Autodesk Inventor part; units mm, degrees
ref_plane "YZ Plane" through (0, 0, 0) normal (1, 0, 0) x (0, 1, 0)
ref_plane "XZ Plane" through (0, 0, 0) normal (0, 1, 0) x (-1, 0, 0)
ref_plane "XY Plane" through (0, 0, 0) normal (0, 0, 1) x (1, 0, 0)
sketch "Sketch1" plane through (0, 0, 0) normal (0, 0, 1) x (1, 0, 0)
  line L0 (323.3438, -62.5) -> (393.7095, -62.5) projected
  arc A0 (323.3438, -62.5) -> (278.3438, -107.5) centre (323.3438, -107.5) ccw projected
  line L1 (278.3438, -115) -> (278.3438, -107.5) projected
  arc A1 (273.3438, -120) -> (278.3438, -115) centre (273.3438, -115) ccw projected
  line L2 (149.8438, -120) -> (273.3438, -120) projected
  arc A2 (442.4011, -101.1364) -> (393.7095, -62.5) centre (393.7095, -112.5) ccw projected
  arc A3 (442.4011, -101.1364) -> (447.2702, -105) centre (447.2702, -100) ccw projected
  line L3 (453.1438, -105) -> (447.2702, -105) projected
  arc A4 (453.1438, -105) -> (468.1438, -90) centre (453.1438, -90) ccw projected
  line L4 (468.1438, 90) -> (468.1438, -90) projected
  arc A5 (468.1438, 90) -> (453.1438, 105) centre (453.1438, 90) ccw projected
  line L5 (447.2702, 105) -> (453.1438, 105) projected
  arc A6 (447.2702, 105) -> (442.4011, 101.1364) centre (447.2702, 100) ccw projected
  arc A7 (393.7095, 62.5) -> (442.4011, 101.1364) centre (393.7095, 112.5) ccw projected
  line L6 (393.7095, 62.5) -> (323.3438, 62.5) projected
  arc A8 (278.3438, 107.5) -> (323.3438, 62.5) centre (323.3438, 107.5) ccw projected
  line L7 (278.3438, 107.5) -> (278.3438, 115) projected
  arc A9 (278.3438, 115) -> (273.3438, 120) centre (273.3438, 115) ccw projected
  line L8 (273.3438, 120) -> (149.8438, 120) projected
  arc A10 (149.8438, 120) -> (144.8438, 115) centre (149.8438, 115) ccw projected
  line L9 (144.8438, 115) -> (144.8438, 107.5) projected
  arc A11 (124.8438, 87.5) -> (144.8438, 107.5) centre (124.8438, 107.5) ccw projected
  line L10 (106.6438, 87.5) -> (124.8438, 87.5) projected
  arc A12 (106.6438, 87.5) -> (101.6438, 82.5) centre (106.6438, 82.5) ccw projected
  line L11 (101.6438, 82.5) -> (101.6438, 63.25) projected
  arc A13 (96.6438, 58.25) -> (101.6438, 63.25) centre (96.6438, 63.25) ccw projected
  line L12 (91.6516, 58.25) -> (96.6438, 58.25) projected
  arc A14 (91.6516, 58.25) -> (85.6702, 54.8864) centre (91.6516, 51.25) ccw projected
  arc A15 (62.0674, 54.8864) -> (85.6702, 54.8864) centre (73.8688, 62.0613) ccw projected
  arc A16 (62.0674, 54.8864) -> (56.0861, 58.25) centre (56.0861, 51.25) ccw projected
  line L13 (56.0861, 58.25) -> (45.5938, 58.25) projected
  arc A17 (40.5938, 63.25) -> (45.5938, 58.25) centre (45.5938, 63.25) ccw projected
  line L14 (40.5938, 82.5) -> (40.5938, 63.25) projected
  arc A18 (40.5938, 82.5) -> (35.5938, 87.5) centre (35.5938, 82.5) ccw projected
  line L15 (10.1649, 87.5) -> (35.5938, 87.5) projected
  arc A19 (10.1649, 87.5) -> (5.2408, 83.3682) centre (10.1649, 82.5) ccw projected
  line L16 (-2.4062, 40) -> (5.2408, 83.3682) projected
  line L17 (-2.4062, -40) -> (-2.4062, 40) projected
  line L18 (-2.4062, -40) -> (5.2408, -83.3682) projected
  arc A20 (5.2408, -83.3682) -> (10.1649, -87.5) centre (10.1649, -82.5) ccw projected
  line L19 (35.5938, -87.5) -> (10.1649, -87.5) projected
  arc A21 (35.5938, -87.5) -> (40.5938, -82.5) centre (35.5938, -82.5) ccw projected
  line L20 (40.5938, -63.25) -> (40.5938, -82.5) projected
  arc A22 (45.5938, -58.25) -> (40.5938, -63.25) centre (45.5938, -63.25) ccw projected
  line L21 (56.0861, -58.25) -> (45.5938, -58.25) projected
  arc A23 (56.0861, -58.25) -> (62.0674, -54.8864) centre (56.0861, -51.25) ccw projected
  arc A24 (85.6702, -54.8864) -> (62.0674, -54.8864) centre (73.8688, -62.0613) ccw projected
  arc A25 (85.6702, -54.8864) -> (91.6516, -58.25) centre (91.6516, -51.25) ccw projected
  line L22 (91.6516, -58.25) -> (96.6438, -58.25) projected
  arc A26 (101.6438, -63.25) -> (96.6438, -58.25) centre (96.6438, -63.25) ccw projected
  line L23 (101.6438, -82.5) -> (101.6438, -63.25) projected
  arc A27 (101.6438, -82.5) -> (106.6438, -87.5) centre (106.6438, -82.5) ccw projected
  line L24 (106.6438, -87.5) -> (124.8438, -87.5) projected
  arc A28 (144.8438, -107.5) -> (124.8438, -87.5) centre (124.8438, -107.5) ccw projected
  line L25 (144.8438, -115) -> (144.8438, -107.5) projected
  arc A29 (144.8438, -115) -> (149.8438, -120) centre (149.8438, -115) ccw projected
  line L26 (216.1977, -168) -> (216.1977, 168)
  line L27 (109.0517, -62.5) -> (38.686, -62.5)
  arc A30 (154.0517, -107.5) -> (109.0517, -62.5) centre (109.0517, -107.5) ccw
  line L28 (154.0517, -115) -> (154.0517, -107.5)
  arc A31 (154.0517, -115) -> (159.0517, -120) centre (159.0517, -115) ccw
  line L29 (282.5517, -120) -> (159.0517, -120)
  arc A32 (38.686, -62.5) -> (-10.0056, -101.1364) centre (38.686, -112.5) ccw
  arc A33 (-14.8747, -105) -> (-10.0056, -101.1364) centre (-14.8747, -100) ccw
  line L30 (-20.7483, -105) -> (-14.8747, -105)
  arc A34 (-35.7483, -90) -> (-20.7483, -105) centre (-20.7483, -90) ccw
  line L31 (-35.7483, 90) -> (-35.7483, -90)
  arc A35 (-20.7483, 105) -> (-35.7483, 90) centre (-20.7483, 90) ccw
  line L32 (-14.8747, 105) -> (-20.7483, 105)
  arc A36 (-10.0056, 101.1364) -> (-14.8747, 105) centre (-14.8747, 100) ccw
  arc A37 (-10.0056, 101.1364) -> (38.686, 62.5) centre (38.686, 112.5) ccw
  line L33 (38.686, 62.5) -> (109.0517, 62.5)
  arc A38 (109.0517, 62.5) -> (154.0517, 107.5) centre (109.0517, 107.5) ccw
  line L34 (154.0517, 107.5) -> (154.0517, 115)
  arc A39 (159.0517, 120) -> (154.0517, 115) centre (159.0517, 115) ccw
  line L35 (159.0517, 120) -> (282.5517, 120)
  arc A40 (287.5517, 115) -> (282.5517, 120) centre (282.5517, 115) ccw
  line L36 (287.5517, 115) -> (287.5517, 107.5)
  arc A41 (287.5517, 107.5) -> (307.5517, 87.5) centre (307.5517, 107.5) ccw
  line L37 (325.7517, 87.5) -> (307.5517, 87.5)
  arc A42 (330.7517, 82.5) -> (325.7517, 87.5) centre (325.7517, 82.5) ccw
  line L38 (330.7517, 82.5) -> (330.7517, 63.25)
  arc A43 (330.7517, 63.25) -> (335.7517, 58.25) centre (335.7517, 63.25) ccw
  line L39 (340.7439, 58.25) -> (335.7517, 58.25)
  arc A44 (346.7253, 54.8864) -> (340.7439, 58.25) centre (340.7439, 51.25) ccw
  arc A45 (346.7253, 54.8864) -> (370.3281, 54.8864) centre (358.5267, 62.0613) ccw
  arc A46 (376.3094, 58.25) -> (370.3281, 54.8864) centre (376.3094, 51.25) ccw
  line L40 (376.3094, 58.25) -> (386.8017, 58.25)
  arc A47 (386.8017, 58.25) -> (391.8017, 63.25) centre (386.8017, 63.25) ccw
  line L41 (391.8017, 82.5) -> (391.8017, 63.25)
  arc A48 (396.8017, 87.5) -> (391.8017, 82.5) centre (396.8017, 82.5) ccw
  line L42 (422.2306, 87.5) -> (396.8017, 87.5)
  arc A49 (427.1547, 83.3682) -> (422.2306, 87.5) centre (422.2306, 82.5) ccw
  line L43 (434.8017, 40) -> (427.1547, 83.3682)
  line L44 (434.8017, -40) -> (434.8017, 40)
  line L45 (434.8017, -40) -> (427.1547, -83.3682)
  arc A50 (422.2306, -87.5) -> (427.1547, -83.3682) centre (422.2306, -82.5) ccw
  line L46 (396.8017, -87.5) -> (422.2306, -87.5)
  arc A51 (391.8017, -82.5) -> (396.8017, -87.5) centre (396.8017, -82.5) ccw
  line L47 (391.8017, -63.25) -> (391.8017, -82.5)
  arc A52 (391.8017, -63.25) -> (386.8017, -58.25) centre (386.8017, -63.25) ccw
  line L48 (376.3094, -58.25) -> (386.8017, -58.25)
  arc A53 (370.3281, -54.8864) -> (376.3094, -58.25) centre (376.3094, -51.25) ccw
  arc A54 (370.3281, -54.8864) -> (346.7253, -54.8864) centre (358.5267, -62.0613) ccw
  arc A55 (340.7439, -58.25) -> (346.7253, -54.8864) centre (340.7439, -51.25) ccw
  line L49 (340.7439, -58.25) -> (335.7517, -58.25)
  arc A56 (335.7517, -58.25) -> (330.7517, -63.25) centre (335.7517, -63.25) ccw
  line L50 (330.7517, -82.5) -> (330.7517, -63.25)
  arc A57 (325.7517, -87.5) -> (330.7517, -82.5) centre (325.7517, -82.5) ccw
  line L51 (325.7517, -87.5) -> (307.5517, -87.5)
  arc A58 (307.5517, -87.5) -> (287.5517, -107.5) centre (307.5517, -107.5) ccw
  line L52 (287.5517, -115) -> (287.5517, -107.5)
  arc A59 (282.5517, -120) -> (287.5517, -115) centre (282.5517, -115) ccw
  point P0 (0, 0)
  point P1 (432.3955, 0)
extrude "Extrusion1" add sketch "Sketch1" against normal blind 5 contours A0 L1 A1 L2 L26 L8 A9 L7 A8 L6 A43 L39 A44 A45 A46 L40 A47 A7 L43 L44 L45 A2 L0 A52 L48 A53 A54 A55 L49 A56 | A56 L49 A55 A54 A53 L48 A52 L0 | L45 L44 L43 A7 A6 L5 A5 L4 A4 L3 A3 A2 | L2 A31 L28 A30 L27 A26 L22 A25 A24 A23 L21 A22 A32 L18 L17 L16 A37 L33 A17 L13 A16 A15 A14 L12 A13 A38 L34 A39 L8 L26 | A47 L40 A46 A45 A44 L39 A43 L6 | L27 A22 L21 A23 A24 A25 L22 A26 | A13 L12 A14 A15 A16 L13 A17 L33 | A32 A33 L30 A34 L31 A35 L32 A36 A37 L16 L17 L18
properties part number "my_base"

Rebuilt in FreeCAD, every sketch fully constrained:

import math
import FreeCAD as App
import Part
import Sketcher

doc = App.newDocument("Part")
params = doc.addObject("Spreadsheet::Sheet", "Params")
for row, (alias, value) in enumerate([
    ("sketch1_radius", "45 mm"),
    ("sketch1_radius2", "50 mm"),
    ("sketch1_radius3", "5 mm"),
    ("sketch1_radius4", "15 mm"),
    ("sketch1_height", "180 mm"),
    ("pad1_length", "5 mm"),
], start=1):
    params.set(f"A{row}", alias)
    params.set(f"B{row}", "=" + value)
    params.setAlias(f"B{row}", alias)

body = doc.addObject("PartDesign::Body", "Body")

# Sketch on XY plane
sketch1 = body.newObject("Sketcher::SketchObject", "Sketch")
sketch1.AttachmentSupport = (doc.getObject("XY_Plane"), [""])
sketch1.MapMode = "FlatFace"
sketch1.addGeometry([
    Part.ArcOfCircle(Part.Circle(App.Vector(323.3, -107.5, 0), App.Vector(0, 0, 1), 45), math.radians(90), math.radians(180)),  # 0
    Part.LineSegment(App.Vector(323.3, -62.5, 0), App.Vector(393.7, -62.5, 0)),  # 1
    Part.ArcOfCircle(Part.Circle(App.Vector(393.7, -112.5, 0), App.Vector(0, 0, 1), 50), math.radians(13), math.radians(90)),  # 2
    Part.ArcOfCircle(Part.Circle(App.Vector(447.3, -100, 0), App.Vector(0, 0, 1), 5), math.radians(-167), math.radians(-90)),  # 3
    Part.LineSegment(App.Vector(447.3, -105, 0), App.Vector(453.1, -105, 0)),  # 4
    Part.ArcOfCircle(Part.Circle(App.Vector(453.1, -90, 0), App.Vector(0, 0, 1), 15), math.radians(-90), math.radians(0)),  # 5
    Part.LineSegment(App.Vector(468.1, -90, 0), App.Vector(468.1, 90, 0)),  # 6
    Part.ArcOfCircle(Part.Circle(App.Vector(453.1, 90, 0), App.Vector(0, 0, 1), 15), math.radians(0), math.radians(90)),  # 7
    Part.LineSegment(App.Vector(453.1, 105, 0), App.Vector(447.3, 105, 0)),  # 8
    Part.ArcOfCircle(Part.Circle(App.Vector(447.3, 100, 0), App.Vector(0, 0, 1), 5), math.radians(90), math.radians(167)),  # 9
    Part.ArcOfCircle(Part.Circle(App.Vector(393.7, 112.5, 0), App.Vector(0, 0, 1), 50), math.radians(-90), math.radians(-13)),  # 10
    Part.LineSegment(App.Vector(393.7, 62.5, 0), App.Vector(323.3, 62.5, 0)),  # 11
    Part.ArcOfCircle(Part.Circle(App.Vector(323.3, 107.5, 0), App.Vector(0, 0, 1), 45), math.radians(180), math.radians(270)),  # 12
    Part.LineSegment(App.Vector(278.3, 107.5, 0), App.Vector(278.3, 115, 0)),  # 13
    Part.ArcOfCircle(Part.Circle(App.Vector(273.3, 115, 0), App.Vector(0, 0, 1), 5), math.radians(0), math.radians(90)),  # 14
    Part.LineSegment(App.Vector(273.3, 120, 0), App.Vector(159.1, 120, 0)),  # 15
    Part.ArcOfCircle(Part.Circle(App.Vector(159.1, 115, 0), App.Vector(0, 0, 1), 5), math.radians(90), math.radians(180)),  # 16
    Part.LineSegment(App.Vector(154.1, 115, 0), App.Vector(154.1, 107.5, 0)),  # 17
    Part.ArcOfCircle(Part.Circle(App.Vector(109.1, 107.5, 0), App.Vector(0, 0, 1), 45), math.radians(-90), math.radians(0)),  # 18
    Part.LineSegment(App.Vector(109.1, 62.5, 0), App.Vector(38.7, 62.5, 0)),  # 19
    Part.ArcOfCircle(Part.Circle(App.Vector(38.7, 112.5, 0), App.Vector(0, 0, 1), 50), math.radians(-167), math.radians(-90)),  # 20
    Part.ArcOfCircle(Part.Circle(App.Vector(-14.9, 100, 0), App.Vector(0, 0, 1), 5), math.radians(13), math.radians(90)),  # 21
    Part.LineSegment(App.Vector(-14.9, 105, 0), App.Vector(-20.7, 105, 0)),  # 22
    Part.ArcOfCircle(Part.Circle(App.Vector(-20.7, 90, 0), App.Vector(0, 0, 1), 15), math.radians(90), math.radians(180)),  # 23
    Part.LineSegment(App.Vector(-35.7, 90, 0), App.Vector(-35.7, -90, 0)),  # 24
    Part.ArcOfCircle(Part.Circle(App.Vector(-20.7, -90, 0), App.Vector(0, 0, 1), 15), math.radians(180), math.radians(270)),  # 25
    Part.LineSegment(App.Vector(-20.7, -105, 0), App.Vector(-14.9, -105, 0)),  # 26
    Part.ArcOfCircle(Part.Circle(App.Vector(-14.9, -100, 0), App.Vector(0, 0, 1), 5), math.radians(-90), math.radians(-13)),  # 27
    Part.ArcOfCircle(Part.Circle(App.Vector(38.7, -112.5, 0), App.Vector(0, 0, 1), 50), math.radians(90), math.radians(167)),  # 28
    Part.LineSegment(App.Vector(38.7, -62.5, 0), App.Vector(109.1, -62.5, 0)),  # 29
    Part.ArcOfCircle(Part.Circle(App.Vector(109.1, -107.5, 0), App.Vector(0, 0, 1), 45), math.radians(0), math.radians(90)),  # 30
    Part.LineSegment(App.Vector(154.1, -107.5, 0), App.Vector(154.1, -115, 0)),  # 31
    Part.ArcOfCircle(Part.Circle(App.Vector(159.1, -115, 0), App.Vector(0, 0, 1), 5), math.radians(180), math.radians(270)),  # 32
    Part.LineSegment(App.Vector(159.1, -120, 0), App.Vector(273.3, -120, 0)),  # 33
    Part.ArcOfCircle(Part.Circle(App.Vector(273.3, -115, 0), App.Vector(0, 0, 1), 5), math.radians(-90), math.radians(0)),  # 34
    Part.LineSegment(App.Vector(278.3, -115, 0), App.Vector(278.3, -107.5, 0)),  # 35
], False)
sketch1.addConstraint([
    Sketcher.Constraint("Tangent", 0, 1, 1, 1),
    Sketcher.Constraint("Tangent", 1, 2, 2, 2),
    Sketcher.Constraint("Tangent", 2, 1, 3, 1),
    Sketcher.Constraint("Tangent", 3, 2, 4, 1),
    Sketcher.Constraint("Tangent", 4, 2, 5, 1),
    Sketcher.Constraint("Tangent", 5, 2, 6, 1),
    Sketcher.Constraint("Tangent", 6, 2, 7, 1),
    Sketcher.Constraint("Tangent", 7, 2, 8, 1),
    Sketcher.Constraint("Tangent", 8, 2, 9, 1),
    Sketcher.Constraint("Tangent", 9, 2, 10, 2),
    Sketcher.Constraint("Tangent", 10, 1, 11, 1),
    Sketcher.Constraint("Tangent", 11, 2, 12, 2),
    Sketcher.Constraint("Tangent", 12, 1, 13, 1),
    Sketcher.Constraint("Tangent", 13, 2, 14, 1),
    Sketcher.Constraint("Tangent", 14, 2, 15, 1),
    Sketcher.Constraint("Tangent", 15, 2, 16, 1),
    Sketcher.Constraint("Tangent", 16, 2, 17, 1),
    Sketcher.Constraint("Tangent", 17, 2, 18, 2),
    Sketcher.Constraint("Tangent", 18, 1, 19, 1),
    Sketcher.Constraint("Tangent", 19, 2, 20, 2),
    Sketcher.Constraint("Tangent", 20, 1, 21, 1),
    Sketcher.Constraint("Tangent", 21, 2, 22, 1),
    Sketcher.Constraint("Tangent", 22, 2, 23, 1),
    Sketcher.Constraint("Tangent", 23, 2, 24, 1),
    Sketcher.Constraint("Tangent", 24, 2, 25, 1),
    Sketcher.Constraint("Tangent", 25, 2, 26, 1),
    Sketcher.Constraint("Tangent", 26, 2, 27, 1),
    Sketcher.Constraint("Tangent", 27, 2, 28, 2),
    Sketcher.Constraint("Tangent", 28, 1, 29, 1),
    Sketcher.Constraint("Tangent", 29, 2, 30, 2),
    Sketcher.Constraint("Tangent", 30, 1, 31, 1),
    Sketcher.Constraint("Tangent", 31, 2, 32, 1),
    Sketcher.Constraint("Tangent", 32, 2, 33, 1),
    Sketcher.Constraint("Tangent", 33, 2, 34, 1),
    Sketcher.Constraint("Tangent", 34, 2, 35, 1),
    Sketcher.Constraint("Tangent", 35, 2, 0, 2),
    Sketcher.Constraint("Horizontal", 1),
    Sketcher.Constraint("Horizontal", 4),
    Sketcher.Constraint("Vertical", 6),
    Sketcher.Constraint("Horizontal", 8),
    Sketcher.Constraint("Horizontal", 11),
    Sketcher.Constraint("Vertical", 13),
    Sketcher.Constraint("Horizontal", 15),
    Sketcher.Constraint("Vertical", 17),
    Sketcher.Constraint("Horizontal", 19),
    Sketcher.Constraint("Horizontal", 22),
    Sketcher.Constraint("Vertical", 24),
    Sketcher.Constraint("Horizontal", 26),
    Sketcher.Constraint("Horizontal", 29),
    Sketcher.Constraint("Vertical", 31),
    Sketcher.Constraint("Horizontal", 33),
    Sketcher.Constraint("Vertical", 35),
    Sketcher.Constraint("Equal", 5, 7),
    Sketcher.Constraint("Equal", 3, 9),
    Sketcher.Constraint("Equal", 2, 10),
    Sketcher.Constraint("Equal", 0, 12),
    Sketcher.Constraint("Equal", 9, 14),
    Sketcher.Constraint("Equal", 14, 16),
    Sketcher.Constraint("Equal", 12, 18),
    Sketcher.Constraint("Equal", 10, 20),
    Sketcher.Constraint("Equal", 16, 21),
    Sketcher.Constraint("Equal", 7, 23),
    Sketcher.Constraint("Equal", 23, 25),
    Sketcher.Constraint("Equal", 21, 27),
    Sketcher.Constraint("Equal", 20, 28),
    Sketcher.Constraint("Equal", 18, 30),
    Sketcher.Constraint("Equal", 27, 32),
    Sketcher.Constraint("Equal", 32, 34),
    Sketcher.Constraint("Symmetric", 3, 3, 9, 3, -1),
    Sketcher.Constraint("Symmetric", 0, 3, 12, 3, -1),
    Sketcher.Constraint("Symmetric", 21, 3, 27, 3, -1),
    Sketcher.Constraint("Symmetric", 18, 3, 30, 3, -1),
    Sketcher.Constraint("Horizontal", 12, 3, 18, 3),
    Sketcher.Constraint("Horizontal", 9, 3, 21, 3),
    Sketcher.Constraint("Equal", 11, 19),
    Sketcher.Constraint("Equal", 8, 22),
    Sketcher.Constraint("Equal", 17, 31),
    Sketcher.Constraint("Radius", 0, 45.0),
    Sketcher.Constraint("Radius", 2, 50.0),
    Sketcher.Constraint("Radius", 3, 5.0),
    Sketcher.Constraint("Radius", 5, 15.0),
    Sketcher.Constraint("DistanceY", 6, 1, 6, 2, 180.0),
    Sketcher.Constraint("DistanceY", 13, 1, 13, 2, 7.5),
    Sketcher.Constraint("DistanceY", -1, 1, 14, 3, 115.0),
    Sketcher.Constraint("DistanceX", 0, 3, 5, 3, 129.8),
    Sketcher.Constraint("DistanceX", 15, 2, 15, 1, 114.292),
    Sketcher.Constraint("DistanceX", 1, 1, 1, 2, 70.3657),
    Sketcher.Constraint("DistanceX", -1, 1, 20, 3, 38.686),
])
sketch1.setExpression("Constraints[77]", "Params.sketch1_radius")
sketch1.setExpression("Constraints[78]", "Params.sketch1_radius2")
sketch1.setExpression("Constraints[79]", "Params.sketch1_radius3")
sketch1.setExpression("Constraints[80]", "Params.sketch1_radius4")
sketch1.setExpression("Constraints[81]", "Params.sketch1_height")
pad1 = body.newObject("PartDesign::Pad", "Pad")
pad1.Profile = sketch1
pad1.setExpression("Length", "Params.pad1_length")
pad1.Reversed = True

doc.recompute()
